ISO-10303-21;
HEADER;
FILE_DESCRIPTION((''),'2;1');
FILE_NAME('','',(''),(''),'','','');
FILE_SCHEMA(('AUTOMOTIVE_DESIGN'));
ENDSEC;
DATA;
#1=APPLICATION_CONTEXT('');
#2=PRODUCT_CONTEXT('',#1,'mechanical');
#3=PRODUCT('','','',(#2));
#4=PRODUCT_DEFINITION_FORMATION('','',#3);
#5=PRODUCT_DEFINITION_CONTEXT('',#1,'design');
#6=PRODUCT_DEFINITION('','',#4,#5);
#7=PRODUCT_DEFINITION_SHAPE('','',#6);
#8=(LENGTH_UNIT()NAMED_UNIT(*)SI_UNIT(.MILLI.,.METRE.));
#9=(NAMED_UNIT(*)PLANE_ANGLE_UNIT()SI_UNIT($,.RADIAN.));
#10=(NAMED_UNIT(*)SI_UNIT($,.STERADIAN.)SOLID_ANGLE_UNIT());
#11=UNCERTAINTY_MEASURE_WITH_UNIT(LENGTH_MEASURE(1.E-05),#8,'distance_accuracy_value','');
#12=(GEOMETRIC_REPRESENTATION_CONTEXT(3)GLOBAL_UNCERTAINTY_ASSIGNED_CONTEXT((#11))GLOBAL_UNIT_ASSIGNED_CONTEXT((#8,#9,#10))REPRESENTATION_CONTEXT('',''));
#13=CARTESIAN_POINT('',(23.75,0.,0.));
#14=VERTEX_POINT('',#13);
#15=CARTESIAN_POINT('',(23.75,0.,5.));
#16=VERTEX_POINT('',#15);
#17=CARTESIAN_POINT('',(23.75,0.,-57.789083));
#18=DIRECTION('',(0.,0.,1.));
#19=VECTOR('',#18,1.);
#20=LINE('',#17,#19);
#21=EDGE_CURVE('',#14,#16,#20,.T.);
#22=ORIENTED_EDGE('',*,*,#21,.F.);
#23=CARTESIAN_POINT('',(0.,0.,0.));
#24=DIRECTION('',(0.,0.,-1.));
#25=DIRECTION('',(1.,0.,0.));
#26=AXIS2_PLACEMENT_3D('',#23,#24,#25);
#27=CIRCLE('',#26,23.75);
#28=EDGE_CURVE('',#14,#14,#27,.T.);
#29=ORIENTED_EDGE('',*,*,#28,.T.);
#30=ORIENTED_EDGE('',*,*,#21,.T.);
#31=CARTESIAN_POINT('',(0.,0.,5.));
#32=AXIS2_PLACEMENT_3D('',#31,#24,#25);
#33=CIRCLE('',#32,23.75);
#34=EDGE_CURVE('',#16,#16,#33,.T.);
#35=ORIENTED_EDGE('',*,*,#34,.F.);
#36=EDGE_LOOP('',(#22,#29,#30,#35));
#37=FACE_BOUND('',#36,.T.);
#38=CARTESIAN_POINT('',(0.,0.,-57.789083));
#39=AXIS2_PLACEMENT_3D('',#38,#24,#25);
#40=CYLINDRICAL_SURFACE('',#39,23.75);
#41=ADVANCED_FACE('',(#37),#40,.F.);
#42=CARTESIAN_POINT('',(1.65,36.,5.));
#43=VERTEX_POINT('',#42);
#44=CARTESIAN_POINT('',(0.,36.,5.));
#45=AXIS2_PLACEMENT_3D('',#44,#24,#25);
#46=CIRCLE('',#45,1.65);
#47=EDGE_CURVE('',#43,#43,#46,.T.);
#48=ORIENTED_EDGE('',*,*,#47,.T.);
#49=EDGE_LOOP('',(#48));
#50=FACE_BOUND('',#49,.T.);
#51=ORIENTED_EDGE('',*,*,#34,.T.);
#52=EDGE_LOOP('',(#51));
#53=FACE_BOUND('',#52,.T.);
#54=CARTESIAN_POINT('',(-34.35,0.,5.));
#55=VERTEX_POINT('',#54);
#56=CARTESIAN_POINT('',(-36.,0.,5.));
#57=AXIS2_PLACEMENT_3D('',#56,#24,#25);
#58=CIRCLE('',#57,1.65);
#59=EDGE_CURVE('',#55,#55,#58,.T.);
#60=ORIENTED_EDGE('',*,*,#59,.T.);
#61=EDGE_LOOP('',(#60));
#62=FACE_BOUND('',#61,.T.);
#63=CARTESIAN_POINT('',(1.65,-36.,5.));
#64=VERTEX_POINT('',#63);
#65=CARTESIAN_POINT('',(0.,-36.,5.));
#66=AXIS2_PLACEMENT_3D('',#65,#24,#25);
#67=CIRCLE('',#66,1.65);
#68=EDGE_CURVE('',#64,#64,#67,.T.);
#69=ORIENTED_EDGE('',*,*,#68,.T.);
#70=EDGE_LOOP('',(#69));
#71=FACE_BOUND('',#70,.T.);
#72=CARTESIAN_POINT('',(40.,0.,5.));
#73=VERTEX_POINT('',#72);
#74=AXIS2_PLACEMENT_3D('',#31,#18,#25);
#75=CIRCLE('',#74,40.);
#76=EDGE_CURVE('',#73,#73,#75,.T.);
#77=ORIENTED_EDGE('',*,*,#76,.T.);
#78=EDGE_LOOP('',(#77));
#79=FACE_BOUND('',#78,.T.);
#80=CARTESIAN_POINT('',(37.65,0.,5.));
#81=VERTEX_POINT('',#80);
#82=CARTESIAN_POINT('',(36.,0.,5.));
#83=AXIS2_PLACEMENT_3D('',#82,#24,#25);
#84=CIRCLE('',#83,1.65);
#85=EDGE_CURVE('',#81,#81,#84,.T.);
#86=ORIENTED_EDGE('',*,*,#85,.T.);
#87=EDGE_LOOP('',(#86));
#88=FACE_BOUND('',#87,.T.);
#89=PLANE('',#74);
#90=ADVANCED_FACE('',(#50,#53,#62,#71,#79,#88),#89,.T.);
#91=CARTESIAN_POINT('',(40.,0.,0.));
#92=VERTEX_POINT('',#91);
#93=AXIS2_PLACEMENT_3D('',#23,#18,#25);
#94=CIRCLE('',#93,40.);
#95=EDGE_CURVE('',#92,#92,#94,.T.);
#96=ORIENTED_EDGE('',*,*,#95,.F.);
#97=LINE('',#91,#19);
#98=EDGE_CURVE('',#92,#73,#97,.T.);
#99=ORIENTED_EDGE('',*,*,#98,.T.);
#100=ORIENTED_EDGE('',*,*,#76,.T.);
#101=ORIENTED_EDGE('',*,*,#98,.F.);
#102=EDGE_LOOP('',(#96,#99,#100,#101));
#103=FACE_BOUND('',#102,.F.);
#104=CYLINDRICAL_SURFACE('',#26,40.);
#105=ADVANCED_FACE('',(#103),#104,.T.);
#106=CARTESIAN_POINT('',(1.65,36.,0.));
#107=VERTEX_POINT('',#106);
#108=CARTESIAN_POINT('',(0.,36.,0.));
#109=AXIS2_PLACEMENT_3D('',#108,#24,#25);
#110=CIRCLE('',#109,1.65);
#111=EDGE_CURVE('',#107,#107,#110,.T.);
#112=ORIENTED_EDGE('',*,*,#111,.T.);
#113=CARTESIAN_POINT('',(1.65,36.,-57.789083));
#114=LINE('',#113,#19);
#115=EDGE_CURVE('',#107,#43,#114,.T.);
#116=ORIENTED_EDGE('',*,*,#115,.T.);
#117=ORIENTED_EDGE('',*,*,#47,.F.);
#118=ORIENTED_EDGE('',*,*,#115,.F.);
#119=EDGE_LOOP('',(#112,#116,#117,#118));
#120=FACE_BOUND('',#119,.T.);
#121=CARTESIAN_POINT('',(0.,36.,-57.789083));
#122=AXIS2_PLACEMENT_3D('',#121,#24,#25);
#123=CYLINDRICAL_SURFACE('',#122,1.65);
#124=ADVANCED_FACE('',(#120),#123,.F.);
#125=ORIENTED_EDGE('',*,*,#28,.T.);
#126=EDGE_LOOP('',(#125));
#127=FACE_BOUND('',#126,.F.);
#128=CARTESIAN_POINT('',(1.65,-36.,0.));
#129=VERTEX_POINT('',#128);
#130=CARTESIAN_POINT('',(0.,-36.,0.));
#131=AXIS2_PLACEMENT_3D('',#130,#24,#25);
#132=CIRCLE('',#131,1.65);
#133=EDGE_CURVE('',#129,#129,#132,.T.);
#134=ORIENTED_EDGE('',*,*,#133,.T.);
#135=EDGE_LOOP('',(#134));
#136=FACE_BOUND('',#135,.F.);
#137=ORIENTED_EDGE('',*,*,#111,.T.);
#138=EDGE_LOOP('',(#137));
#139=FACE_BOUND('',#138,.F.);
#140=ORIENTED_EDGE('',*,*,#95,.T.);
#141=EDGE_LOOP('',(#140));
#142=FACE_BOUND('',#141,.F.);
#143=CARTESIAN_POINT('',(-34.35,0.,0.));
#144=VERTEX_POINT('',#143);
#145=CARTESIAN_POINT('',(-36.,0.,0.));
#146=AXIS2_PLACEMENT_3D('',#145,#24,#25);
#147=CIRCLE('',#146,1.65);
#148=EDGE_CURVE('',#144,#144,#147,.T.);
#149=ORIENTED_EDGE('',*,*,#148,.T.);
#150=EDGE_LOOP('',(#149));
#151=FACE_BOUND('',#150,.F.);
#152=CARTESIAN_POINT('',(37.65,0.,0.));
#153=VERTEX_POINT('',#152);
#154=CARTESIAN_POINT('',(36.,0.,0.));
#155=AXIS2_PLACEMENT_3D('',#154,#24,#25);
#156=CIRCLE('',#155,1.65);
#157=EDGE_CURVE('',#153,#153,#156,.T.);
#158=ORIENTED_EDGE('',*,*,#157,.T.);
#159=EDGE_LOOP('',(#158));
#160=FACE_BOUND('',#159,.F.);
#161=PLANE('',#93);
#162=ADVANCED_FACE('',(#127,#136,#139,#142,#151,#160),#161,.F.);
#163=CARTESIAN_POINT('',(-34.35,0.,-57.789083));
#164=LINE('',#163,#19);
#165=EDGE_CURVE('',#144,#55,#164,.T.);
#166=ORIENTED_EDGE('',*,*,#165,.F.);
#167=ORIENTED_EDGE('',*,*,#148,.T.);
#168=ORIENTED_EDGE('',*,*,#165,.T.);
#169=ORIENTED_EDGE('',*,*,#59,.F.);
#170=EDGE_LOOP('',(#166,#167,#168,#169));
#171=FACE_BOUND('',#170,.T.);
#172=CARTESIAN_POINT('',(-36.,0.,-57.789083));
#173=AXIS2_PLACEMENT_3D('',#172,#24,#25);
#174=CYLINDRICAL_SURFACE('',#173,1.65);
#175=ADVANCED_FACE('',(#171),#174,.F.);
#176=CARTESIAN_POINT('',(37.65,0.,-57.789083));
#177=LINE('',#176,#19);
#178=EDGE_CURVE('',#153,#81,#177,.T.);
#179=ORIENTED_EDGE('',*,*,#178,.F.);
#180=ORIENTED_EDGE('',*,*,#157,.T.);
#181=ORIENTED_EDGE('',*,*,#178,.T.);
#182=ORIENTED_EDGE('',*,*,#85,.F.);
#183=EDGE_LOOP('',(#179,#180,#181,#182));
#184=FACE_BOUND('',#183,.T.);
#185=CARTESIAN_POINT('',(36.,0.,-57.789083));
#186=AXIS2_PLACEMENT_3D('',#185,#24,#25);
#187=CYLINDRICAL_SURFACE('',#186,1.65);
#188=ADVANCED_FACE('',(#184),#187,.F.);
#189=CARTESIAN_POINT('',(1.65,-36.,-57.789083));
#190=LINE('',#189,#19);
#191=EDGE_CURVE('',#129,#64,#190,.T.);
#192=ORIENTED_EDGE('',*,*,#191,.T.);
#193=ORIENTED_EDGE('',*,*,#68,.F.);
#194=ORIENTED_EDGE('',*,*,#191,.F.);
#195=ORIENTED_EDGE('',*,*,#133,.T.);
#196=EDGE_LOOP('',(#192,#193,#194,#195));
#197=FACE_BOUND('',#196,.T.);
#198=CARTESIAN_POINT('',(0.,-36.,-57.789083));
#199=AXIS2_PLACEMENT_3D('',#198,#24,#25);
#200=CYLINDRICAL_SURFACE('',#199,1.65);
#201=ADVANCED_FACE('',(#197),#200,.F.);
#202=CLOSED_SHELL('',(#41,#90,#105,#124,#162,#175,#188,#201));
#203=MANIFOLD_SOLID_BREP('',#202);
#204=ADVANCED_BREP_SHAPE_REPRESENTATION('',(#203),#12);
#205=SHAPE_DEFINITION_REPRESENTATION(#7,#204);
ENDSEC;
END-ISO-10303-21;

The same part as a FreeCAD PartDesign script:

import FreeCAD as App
import Part
import Sketcher
from FreeCAD import Vector
Q = App.Units.Quantity

doc = App.newDocument("Part")
body = doc.addObject("PartDesign::Body", "Body")

# Sketch on XY plane
sketch1 = body.newObject("Sketcher::SketchObject", "Sketch")
sketch1.AttachmentSupport = (doc.getObject("XY_Plane"), [""])
sketch1.MapMode = "FlatFace"
sketch1.addGeometry(Part.Circle(Vector(0, 0, 0), Vector(0, 0, 1), 40), False)
sketch1.addConstraint([
    Sketcher.Constraint("Coincident", 0, 3, -1, 1),
    Sketcher.Constraint("Diameter", 0, Q("80 mm")),
])
pad1 = body.newObject("PartDesign::Pad", "Pad")
pad1.Profile = sketch1
pad1.Length = 5

# Sketch on XY plane
sketch2 = body.newObject("Sketcher::SketchObject", "Sketch001")
sketch2.AttachmentSupport = (doc.getObject("XY_Plane"), [""])
sketch2.MapMode = "FlatFace"
sketch2.addGeometry([
    Part.Circle(Vector(0, -36, 0), Vector(0, 0, 1), 1.65),  # 0
    Part.Circle(Vector(0, 0, 0), Vector(0, 0, 1), 23.75),  # 1
    Part.Circle(Vector(-36, 0, 0), Vector(0, 0, 1), 1.65),  # 2
    Part.Circle(Vector(36, 0, 0), Vector(0, 0, 1), 1.65),  # 3
    Part.Circle(Vector(0, 36, 0), Vector(0, 0, 1), 1.65),  # 4
], False)
sketch2.addConstraint([
    Sketcher.Constraint("Coincident", 1, 3, -1, 1),
    Sketcher.Constraint("Equal", 0, 2),
    Sketcher.Constraint("Equal", 2, 3),
    Sketcher.Constraint("Equal", 3, 4),
    Sketcher.Constraint("Symmetric", 2, 3, 3, 3, -1, 1),
    Sketcher.Constraint("Symmetric", 0, 3, 4, 3, -1, 1),
    Sketcher.Constraint("PointOnObject", 0, 3, -2),
    Sketcher.Constraint("PointOnObject", 2, 3, -1),
    Sketcher.Constraint("Diameter", 0, Q("3.3 mm")),
    Sketcher.Constraint("Diameter", 1, Q("47.5 mm")),
    Sketcher.Constraint("DistanceY", 0, 3, -1, 1, Q("36 mm")),
    Sketcher.Constraint("DistanceX", 2, 3, -1, 1, Q("36 mm")),
])
pocket1 = body.newObject("PartDesign::Pocket", "Pocket")
pocket1.Profile = sketch2
pocket1.Type = "ThroughAll"
pocket1.Midplane = True

doc.recompute()
